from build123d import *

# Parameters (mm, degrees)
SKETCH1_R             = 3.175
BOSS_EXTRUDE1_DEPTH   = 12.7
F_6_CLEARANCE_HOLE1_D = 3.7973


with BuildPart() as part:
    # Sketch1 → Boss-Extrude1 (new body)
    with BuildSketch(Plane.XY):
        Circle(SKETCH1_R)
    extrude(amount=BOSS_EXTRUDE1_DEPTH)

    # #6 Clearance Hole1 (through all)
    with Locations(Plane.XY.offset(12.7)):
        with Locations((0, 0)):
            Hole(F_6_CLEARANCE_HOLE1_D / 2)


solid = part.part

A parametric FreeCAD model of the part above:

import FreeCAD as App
import Part
import Sketcher
from FreeCAD import Vector
Q = App.Units.Quantity

doc = App.newDocument("Part")
body = doc.addObject("PartDesign::Body", "Body")

# Sketch on XY plane
sketch1 = doc.addObject("Sketcher::SketchObject", "Sketch")
body.addObject(sketch1)
sketch1.AttachmentSupport = (doc.XY_Plane, [""])
sketch1.MapMode = "FlatFace"
sketch1.addGeometry(Part.Circle(Vector(0, 0, 0), Vector(0, 0, 1), 3.2), False)
sketch1.addConstraint([
    Sketcher.Constraint("Coincident", 0, 3, -1, 1),
    Sketcher.Constraint("Diameter", 0, Q("0.25 in")),
])
pad1 = doc.addObject("PartDesign::Pad", "Pad")
body.addObject(pad1)
pad1.Profile = sketch1
pad1.Length = Q("0.5 in")

# Sketch on XY plane
sketch2 = doc.addObject("Sketcher::SketchObject", "Sketch001")
body.addObject(sketch2)
sketch2.AttachmentSupport = (doc.XY_Plane, [""])
sketch2.MapMode = "FlatFace"
sketch2.AttachmentOffset = App.Placement(Vector(0, 0, 0.5 * 25.4), App.Rotation())
sketch2.addGeometry(Part.Circle(Vector(0, 0, 0), Vector(0, 0, 1), 1.9), False)
sketch2.addConstraint([
    Sketcher.Constraint("Coincident", 0, 3, -1, 1),
    Sketcher.Constraint("Diameter", 0, Q("0.1495 in")),
])
doc.recompute()
hole = doc.addObject("PartDesign::Hole", "Hole")
body.addObject(hole)
hole.Profile = sketch2
hole.ThreadType = "None"
hole.Diameter = Q("0.1495 in")
hole.DepthType = "ThroughAll"

doc.recompute()
